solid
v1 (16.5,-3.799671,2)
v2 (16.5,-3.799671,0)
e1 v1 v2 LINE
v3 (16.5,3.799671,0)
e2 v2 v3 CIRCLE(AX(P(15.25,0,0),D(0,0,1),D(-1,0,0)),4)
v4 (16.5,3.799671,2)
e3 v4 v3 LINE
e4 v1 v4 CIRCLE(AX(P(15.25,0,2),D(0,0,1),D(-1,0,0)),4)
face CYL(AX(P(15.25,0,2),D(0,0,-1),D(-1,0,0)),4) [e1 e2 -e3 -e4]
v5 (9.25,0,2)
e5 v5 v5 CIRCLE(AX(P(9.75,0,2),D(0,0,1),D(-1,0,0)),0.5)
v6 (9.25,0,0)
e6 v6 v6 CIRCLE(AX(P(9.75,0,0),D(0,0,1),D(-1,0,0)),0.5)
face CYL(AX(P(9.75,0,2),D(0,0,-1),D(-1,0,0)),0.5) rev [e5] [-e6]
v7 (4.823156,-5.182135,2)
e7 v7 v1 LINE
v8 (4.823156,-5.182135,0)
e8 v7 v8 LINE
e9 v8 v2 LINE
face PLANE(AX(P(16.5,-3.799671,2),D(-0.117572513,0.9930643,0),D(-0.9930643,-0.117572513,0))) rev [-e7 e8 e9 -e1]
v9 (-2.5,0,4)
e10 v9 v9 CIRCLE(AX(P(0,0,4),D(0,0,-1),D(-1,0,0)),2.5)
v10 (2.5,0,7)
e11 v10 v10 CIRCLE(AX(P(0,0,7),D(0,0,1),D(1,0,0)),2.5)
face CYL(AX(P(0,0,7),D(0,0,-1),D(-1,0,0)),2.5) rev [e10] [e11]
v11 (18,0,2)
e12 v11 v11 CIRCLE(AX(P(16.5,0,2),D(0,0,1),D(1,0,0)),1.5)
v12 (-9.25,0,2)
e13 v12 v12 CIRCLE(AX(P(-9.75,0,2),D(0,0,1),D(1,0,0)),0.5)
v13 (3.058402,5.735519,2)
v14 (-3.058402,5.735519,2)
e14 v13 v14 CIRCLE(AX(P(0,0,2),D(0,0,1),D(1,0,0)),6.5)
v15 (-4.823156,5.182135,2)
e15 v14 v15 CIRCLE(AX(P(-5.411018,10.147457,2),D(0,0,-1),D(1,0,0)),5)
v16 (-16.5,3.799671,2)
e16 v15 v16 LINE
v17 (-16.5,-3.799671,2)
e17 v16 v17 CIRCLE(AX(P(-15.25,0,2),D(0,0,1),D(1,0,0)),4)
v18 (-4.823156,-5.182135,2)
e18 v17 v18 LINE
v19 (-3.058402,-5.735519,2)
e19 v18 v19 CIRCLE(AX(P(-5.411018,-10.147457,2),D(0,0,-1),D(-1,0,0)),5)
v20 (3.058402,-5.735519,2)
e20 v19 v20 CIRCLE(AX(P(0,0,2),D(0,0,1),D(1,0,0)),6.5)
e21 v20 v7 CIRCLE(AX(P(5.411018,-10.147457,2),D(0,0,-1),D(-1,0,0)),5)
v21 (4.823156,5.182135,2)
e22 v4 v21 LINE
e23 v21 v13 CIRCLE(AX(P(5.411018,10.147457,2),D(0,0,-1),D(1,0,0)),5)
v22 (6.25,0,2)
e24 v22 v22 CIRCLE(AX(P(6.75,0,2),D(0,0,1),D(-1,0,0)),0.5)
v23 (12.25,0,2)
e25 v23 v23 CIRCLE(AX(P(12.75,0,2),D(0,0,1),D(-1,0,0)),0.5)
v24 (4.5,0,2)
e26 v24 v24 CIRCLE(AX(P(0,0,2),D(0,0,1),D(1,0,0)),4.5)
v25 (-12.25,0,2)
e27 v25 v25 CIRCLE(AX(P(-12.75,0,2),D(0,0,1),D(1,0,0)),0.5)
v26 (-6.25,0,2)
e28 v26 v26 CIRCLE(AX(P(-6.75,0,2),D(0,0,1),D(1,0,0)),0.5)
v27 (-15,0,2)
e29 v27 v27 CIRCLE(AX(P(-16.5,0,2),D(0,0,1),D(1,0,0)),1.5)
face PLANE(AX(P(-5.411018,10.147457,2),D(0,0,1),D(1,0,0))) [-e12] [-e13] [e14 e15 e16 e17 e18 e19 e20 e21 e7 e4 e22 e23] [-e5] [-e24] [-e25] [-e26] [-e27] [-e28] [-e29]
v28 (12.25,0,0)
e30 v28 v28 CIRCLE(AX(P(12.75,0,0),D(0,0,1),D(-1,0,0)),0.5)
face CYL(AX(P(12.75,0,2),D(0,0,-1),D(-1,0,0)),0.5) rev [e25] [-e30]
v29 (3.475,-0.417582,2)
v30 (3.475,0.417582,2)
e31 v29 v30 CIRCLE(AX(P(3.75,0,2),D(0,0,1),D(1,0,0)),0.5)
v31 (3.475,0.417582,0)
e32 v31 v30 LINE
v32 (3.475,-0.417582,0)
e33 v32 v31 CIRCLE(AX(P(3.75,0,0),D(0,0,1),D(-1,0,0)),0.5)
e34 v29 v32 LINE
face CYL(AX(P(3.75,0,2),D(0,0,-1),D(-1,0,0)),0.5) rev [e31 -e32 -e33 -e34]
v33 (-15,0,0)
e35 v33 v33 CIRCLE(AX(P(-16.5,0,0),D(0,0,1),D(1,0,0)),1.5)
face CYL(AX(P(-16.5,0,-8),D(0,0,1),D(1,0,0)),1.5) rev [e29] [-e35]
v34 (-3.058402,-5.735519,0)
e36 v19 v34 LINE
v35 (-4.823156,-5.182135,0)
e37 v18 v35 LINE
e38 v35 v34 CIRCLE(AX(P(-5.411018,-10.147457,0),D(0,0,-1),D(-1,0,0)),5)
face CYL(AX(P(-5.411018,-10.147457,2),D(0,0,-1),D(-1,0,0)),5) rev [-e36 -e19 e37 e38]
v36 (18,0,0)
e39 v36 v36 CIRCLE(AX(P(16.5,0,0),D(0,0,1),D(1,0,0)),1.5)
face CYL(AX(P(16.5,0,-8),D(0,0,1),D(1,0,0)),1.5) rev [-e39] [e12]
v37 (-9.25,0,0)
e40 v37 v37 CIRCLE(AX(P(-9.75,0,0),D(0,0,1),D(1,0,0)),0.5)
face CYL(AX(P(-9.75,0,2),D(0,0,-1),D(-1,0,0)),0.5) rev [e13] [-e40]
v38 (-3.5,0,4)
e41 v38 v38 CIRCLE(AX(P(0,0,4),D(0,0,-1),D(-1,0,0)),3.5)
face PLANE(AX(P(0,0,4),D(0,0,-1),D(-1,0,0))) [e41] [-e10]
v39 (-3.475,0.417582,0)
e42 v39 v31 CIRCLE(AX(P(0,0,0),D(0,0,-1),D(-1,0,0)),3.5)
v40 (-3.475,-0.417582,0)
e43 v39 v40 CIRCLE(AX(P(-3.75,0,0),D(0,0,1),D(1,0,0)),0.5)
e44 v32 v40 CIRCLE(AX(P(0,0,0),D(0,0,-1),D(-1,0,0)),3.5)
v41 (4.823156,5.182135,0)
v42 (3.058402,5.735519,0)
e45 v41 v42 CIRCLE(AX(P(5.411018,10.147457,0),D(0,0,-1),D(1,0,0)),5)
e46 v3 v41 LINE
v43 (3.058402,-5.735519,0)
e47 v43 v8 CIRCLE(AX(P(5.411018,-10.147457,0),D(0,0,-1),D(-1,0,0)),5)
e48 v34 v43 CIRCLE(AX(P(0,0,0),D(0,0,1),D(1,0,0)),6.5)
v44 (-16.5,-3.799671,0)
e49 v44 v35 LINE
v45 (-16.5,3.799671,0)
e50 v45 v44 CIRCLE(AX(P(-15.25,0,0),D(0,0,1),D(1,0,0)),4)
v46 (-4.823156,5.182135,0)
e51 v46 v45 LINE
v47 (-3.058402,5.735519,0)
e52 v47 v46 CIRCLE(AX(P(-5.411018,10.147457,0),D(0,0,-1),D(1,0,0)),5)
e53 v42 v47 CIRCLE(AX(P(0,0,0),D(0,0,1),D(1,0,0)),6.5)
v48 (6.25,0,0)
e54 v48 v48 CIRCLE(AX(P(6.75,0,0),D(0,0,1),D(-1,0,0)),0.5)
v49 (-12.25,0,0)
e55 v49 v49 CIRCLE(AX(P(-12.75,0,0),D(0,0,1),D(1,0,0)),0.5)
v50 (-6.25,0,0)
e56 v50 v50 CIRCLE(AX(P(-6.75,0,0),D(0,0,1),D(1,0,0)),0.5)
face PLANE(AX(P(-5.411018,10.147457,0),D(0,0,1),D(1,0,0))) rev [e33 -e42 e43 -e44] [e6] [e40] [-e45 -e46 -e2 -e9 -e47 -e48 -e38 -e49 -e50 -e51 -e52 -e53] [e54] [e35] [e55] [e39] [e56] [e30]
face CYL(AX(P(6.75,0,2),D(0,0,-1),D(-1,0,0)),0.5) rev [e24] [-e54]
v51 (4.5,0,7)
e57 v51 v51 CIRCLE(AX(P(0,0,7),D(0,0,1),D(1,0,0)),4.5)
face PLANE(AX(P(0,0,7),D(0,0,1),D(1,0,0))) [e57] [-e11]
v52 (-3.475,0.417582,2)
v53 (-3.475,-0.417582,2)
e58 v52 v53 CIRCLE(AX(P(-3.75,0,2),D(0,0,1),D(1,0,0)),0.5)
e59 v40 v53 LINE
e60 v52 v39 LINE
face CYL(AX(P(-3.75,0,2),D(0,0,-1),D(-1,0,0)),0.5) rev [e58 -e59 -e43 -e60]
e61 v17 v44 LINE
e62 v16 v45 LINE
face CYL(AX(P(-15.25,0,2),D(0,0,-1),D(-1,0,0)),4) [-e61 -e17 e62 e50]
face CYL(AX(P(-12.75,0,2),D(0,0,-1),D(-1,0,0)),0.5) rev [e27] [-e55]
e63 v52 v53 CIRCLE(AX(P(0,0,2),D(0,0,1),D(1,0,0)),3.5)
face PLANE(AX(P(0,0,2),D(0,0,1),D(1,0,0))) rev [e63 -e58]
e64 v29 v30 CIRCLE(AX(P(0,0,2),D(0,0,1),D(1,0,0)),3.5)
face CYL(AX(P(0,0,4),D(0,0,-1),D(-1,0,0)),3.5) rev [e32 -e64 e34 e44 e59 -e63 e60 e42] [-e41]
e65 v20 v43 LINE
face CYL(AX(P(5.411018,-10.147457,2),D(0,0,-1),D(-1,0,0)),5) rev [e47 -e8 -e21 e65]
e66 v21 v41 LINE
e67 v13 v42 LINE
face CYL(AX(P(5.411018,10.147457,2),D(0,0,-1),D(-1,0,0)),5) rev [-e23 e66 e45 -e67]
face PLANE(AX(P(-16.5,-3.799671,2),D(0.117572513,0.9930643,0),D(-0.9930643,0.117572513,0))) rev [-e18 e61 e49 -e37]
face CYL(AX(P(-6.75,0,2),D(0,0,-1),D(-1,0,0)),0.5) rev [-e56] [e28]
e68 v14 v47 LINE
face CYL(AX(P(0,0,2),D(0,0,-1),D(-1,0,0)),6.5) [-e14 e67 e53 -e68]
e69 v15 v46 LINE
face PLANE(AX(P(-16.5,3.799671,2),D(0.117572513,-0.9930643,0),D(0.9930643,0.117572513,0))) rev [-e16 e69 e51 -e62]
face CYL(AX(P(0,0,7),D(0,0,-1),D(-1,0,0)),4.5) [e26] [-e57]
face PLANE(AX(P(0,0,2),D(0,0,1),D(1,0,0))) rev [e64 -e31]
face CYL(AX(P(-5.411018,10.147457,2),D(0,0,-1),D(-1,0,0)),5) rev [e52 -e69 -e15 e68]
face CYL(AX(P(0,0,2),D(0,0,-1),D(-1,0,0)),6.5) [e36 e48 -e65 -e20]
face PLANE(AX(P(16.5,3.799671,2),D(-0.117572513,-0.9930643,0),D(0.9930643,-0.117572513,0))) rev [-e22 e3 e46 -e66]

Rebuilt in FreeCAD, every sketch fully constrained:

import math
import FreeCAD as App
import Part
import Sketcher

V = App.Vector
Q = App.Units.Quantity

doc = App.newDocument("Part")
body = doc.addObject("PartDesign::Body", "Body")

# Sketch on XY plane
sketch1 = doc.addObject("Sketcher::SketchObject", "Sketch")
body.addObject(sketch1)
sketch1.AttachmentSupport = (doc.XY_Plane, [""])
sketch1.MapMode = "FlatFace"
sketch1.addGeometry([
    Part.LineSegment(V(4.8, -5.2, 0), V(16.5, -3.8, 0)),  # 0
    Part.ArcOfCircle(Part.Circle(V(15.3, 0, 0), V(0, 0, 1), 4), math.radians(-72), math.radians(72)),  # 1
    Part.LineSegment(V(16.5, 3.8, 0), V(4.8, 5.2, 0)),  # 2
    Part.ArcOfCircle(Part.Circle(V(5.4, 10.1, 0), V(0, 0, 1), 5), math.radians(-118), math.radians(-97)),  # 3
    Part.ArcOfCircle(Part.Circle(V(0, 0, 0), V(0, 0, 1), 6.5), math.radians(62), math.radians(118)),  # 4
    Part.ArcOfCircle(Part.Circle(V(-5.4, 10.1, 0), V(0, 0, 1), 5), math.radians(-83), math.radians(-62)),  # 5
    Part.LineSegment(V(-4.8, 5.2, 0), V(-16.5, 3.8, 0)),  # 6
    Part.ArcOfCircle(Part.Circle(V(-15.3, 0, 0), V(0, 0, 1), 4), math.radians(108), math.radians(252)),  # 7
    Part.LineSegment(V(-16.5, -3.8, 0), V(-4.8, -5.2, 0)),  # 8
    Part.ArcOfCircle(Part.Circle(V(-5.4, -10.1, 0), V(0, 0, 1), 5), math.radians(62), math.radians(83)),  # 9
    Part.ArcOfCircle(Part.Circle(V(0, 0, 0), V(0, 0, 1), 6.5), math.radians(-118), math.radians(-62)),  # 10
    Part.ArcOfCircle(Part.Circle(V(5.4, -10.1, 0), V(0, 0, 1), 5), math.radians(97), math.radians(118)),  # 11
    Part.Circle(V(16.5, 0, 0), V(0, 0, 1), 0.5),  # 12
    Part.Circle(V(12.8, 0, 0), V(0, 0, 1), 0.5),  # 13
    Part.Circle(V(9.8, 0, 0), V(0, 0, 1), 0.5),  # 14
    Part.Circle(V(6.8, 0, 0), V(0, 0, 1), 0.5),  # 15
    Part.Circle(V(3.8, 0, 0), V(0, 0, 1), 0.5),  # 16
    Part.Circle(V(-3.8, 0, 0), V(0, 0, 1), 0.5),  # 17
    Part.Circle(V(-6.8, 0, 0), V(0, 0, 1), 0.5),  # 18
    Part.Circle(V(-9.8, 0, 0), V(0, 0, 1), 0.5),  # 19
    Part.Circle(V(-12.8, 0, 0), V(0, 0, 1), 0.5),  # 20
    Part.Circle(V(-16.5, 0, 0), V(0, 0, 1), 0.5),  # 21
], False)
sketch1.addConstraint([
    Sketcher.Constraint("Coincident", 0, 2, 1, 1),
    Sketcher.Constraint("Coincident", 1, 2, 2, 1),
    Sketcher.Constraint("Tangent", 2, 2, 3, 2),
    Sketcher.Constraint("Tangent", 3, 1, 4, 1),
    Sketcher.Constraint("Tangent", 4, 2, 5, 2),
    Sketcher.Constraint("Tangent", 5, 1, 6, 1),
    Sketcher.Constraint("Coincident", 6, 2, 7, 1),
    Sketcher.Constraint("Coincident", 7, 2, 8, 1),
    Sketcher.Constraint("Tangent", 8, 2, 9, 2),
    Sketcher.Constraint("Tangent", 9, 1, 10, 1),
    Sketcher.Constraint("Tangent", 10, 2, 11, 2),
    Sketcher.Constraint("Tangent", 11, 1, 0, 1),
    Sketcher.Constraint("Coincident", 4, 3, -1, 1),
    Sketcher.Constraint("Coincident", 10, 3, -1, 1),
    Sketcher.Constraint("Equal", 3, 5),
    Sketcher.Constraint("Equal", 1, 7),
    Sketcher.Constraint("Equal", 5, 9),
    Sketcher.Constraint("Equal", 4, 10),
    Sketcher.Constraint("Equal", 9, 11),
    Sketcher.Constraint("Equal", 12, 13),
    Sketcher.Constraint("Equal", 13, 14),
    Sketcher.Constraint("Equal", 14, 15),
    Sketcher.Constraint("Equal", 15, 16),
    Sketcher.Constraint("Equal", 16, 17),
    Sketcher.Constraint("Equal", 17, 18),
    Sketcher.Constraint("Equal", 18, 19),
    Sketcher.Constraint("Equal", 19, 20),
    Sketcher.Constraint("Equal", 20, 21),
    Sketcher.Constraint("Symmetric", 1, 3, 7, 3, -1, 1),
    Sketcher.Constraint("Symmetric", 16, 3, 17, 3, -1, 1),
    Sketcher.Constraint("Symmetric", 15, 3, 18, 3, -1, 1),
    Sketcher.Constraint("Symmetric", 14, 3, 19, 3, -1, 1),
    Sketcher.Constraint("Symmetric", 13, 3, 20, 3, -1, 1),
    Sketcher.Constraint("Symmetric", 12, 3, 21, 3, -1, 1),
    Sketcher.Constraint("Symmetric", 2, 2, 8, 2, -1, 1),
    Sketcher.Constraint("Symmetric", 5, 1, 11, 1, -1, 1),
    Sketcher.Constraint("Symmetric", 2, 2, 5, 1, -2),
    Sketcher.Constraint("PointOnObject", 1, 3, -1),
    Sketcher.Constraint("PointOnObject", 12, 3, -1),
    Sketcher.Constraint("PointOnObject", 13, 3, -1),
    Sketcher.Constraint("PointOnObject", 14, 3, -1),
    Sketcher.Constraint("PointOnObject", 15, 3, -1),
    Sketcher.Constraint("PointOnObject", 16, 3, -1),
    Sketcher.Constraint("Vertical", 12, 3, 0, 2),
    Sketcher.Constraint("Diameter", 12, Q("1 mm")),
    Sketcher.Constraint("Radius", 1, Q("4 mm")),
    Sketcher.Constraint("Radius", 3, Q("5 mm")),
    Sketcher.Constraint("Radius", 4, Q("6.5 mm")),
    Sketcher.Constraint("DistanceX", 14, 3, 13, 3, Q("3 mm")),
    Sketcher.Constraint("DistanceX", 15, 3, 14, 3, Q("3 mm")),
    Sketcher.Constraint("DistanceX", 16, 3, 15, 3, Q("3 mm")),
    Sketcher.Constraint("DistanceX", -1, 1, 12, 3, Q("16.5 mm")),
    Sketcher.Constraint("DistanceX", 7, 3, 1, 3, Q("30.5 mm")),
    Sketcher.Constraint("DistanceX", 13, 3, 1, 3, Q("2.5 mm")),
    Sketcher.Constraint("DistanceX", -1, 1, 3, 1, Q("3.058402 mm")),
])
pad1 = doc.addObject("PartDesign::Pad", "Pad")
body.addObject(pad1)
pad1.Profile = sketch1
pad1.Length = 2

# Sketch on XY plane
sketch2 = doc.addObject("Sketcher::SketchObject", "Sketch001")
body.addObject(sketch2)
sketch2.AttachmentSupport = (doc.XY_Plane, [""])
sketch2.MapMode = "FlatFace"
sketch2.AttachmentOffset = App.Placement(V(0, 0, 2), App.Rotation())
sketch2.addGeometry([
    Part.Circle(V(0, 0, 0), V(0, 0, 1), 4.5),
    Part.Circle(V(0, 0, 0), V(0, 0, 1), 2.5),
], False)
sketch2.addConstraint([
    Sketcher.Constraint("Coincident", 0, 3, -1, 1),
    Sketcher.Constraint("Coincident", 1, 3, -1, 1),
    Sketcher.Constraint("Diameter", 0, Q("9 mm")),
    Sketcher.Constraint("Diameter", 1, Q("5 mm")),
])
pad2 = doc.addObject("PartDesign::Pad", "Pad001")
body.addObject(pad2)
pad2.Profile = sketch2
pad2.Length = 5

# Sketch on XY plane
sketch3 = doc.addObject("Sketcher::SketchObject", "Sketch002")
body.addObject(sketch3)
sketch3.AttachmentSupport = (doc.XY_Plane, [""])
sketch3.MapMode = "FlatFace"
sketch3.addGeometry(Part.Circle(V(0, 0, 0), V(0, 0, 1), 3.5), False)
sketch3.addConstraint([
    Sketcher.Constraint("Coincident", 0, 3, -1, 1),
    Sketcher.Constraint("Diameter", 0, Q("7 mm")),
])
pocket1 = doc.addObject("PartDesign::Pocket", "Pocket")
body.addObject(pocket1)
pocket1.Profile = sketch3
pocket1.Length = 4
pocket1.Reversed = True

# Sketch on XY plane
sketch4 = doc.addObject("Sketcher::SketchObject", "Sketch003")
body.addObject(sketch4)
sketch4.AttachmentSupport = (doc.XY_Plane, [""])
sketch4.MapMode = "FlatFace"
sketch4.AttachmentOffset = App.Placement(V(0, 0, 2), App.Rotation())
sketch4.addGeometry([
    Part.Circle(V(16.5, 0, 0), V(0, 0, 1), 1.5),
    Part.Circle(V(-16.5, 0, 0), V(0, 0, 1), 1.5),
], False)
sketch4.addConstraint([
    Sketcher.Constraint("Equal", 0, 1),
    Sketcher.Constraint("Symmetric", 0, 3, 1, 3, -1, 1),
    Sketcher.Constraint("PointOnObject", 0, 3, -1),
    Sketcher.Constraint("Diameter", 0, Q("3 mm")),
    Sketcher.Constraint("DistanceX", 1, 3, 0, 3, Q("33 mm")),
])
pocket2 = doc.addObject("PartDesign::Pocket", "Pocket001")
body.addObject(pocket2)
pocket2.Profile = sketch4
pocket2.Length = 10

doc.recompute()
